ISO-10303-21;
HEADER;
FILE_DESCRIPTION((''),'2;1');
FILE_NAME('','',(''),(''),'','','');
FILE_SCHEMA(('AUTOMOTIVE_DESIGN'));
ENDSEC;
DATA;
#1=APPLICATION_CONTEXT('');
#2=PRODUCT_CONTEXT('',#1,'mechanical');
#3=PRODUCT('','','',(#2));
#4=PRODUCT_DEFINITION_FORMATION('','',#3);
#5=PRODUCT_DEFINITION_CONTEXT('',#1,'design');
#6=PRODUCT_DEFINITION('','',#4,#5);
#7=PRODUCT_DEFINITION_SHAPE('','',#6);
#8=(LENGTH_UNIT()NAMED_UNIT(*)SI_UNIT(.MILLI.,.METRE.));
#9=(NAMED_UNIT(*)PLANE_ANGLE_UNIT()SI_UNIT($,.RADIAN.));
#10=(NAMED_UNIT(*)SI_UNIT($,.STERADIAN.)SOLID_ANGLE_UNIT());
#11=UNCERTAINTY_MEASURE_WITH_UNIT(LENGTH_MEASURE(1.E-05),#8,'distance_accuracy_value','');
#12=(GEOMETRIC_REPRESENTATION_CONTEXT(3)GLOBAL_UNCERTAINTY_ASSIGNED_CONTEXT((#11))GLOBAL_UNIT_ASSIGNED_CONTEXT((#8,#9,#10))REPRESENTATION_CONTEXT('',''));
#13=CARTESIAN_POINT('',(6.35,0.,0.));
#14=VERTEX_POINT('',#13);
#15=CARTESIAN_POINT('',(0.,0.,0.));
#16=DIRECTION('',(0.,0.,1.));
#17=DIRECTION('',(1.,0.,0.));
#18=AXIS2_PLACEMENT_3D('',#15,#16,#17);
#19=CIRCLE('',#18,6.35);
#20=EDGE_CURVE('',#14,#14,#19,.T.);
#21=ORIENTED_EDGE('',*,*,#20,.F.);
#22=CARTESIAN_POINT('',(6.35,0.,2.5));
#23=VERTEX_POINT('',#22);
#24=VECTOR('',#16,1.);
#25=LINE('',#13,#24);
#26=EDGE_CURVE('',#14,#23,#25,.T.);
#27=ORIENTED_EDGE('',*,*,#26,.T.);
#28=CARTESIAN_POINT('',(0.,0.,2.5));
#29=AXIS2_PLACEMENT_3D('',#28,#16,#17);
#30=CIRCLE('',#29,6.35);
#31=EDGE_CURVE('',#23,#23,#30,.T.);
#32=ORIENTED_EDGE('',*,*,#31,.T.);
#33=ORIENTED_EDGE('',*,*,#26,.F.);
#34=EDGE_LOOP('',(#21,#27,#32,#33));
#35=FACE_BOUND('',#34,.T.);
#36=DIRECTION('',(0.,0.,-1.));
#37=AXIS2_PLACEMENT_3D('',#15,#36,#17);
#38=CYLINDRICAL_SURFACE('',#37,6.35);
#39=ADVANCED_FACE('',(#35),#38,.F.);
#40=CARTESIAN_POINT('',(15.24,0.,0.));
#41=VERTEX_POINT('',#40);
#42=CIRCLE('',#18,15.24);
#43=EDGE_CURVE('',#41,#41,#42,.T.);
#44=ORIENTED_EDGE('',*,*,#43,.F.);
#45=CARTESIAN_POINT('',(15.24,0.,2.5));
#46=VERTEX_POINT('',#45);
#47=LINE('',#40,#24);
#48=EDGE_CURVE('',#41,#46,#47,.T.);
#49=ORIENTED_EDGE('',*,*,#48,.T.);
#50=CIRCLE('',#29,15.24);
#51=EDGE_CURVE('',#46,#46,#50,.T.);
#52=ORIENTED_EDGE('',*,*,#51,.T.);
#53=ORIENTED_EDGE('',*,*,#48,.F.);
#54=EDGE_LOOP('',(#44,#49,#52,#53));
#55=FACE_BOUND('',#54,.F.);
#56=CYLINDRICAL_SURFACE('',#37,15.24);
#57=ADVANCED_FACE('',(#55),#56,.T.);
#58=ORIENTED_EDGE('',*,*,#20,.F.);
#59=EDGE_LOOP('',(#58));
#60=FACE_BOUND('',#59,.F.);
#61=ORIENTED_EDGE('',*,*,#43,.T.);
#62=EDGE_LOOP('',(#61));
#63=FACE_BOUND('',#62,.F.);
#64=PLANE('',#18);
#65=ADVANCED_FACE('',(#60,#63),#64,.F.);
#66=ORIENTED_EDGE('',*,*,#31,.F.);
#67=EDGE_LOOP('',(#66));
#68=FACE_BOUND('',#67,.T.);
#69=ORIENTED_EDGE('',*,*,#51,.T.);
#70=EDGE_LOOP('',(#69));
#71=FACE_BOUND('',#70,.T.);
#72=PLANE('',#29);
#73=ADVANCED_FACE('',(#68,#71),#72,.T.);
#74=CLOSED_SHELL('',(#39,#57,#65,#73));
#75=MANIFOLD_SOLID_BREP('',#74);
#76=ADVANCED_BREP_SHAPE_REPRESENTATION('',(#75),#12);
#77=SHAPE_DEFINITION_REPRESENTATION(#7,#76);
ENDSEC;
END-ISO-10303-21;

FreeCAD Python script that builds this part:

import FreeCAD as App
import Part
import Sketcher
Q = App.Units.Quantity

doc = App.newDocument("Part")
body = doc.addObject("PartDesign::Body", "Body")

# Sketch on XY plane
sketch1 = doc.addObject("Sketcher::SketchObject", "Sketch")
body.addObject(sketch1)
sketch1.AttachmentSupport = (doc.XY_Plane, [""])
sketch1.MapMode = "FlatFace"
sketch1.addGeometry(Part.Circle(App.Vector(0, 0, 0), App.Vector(0, 0, 1), 15), False)
sketch1.addGeometry(Part.Circle(App.Vector(0, 0, 0), App.Vector(0, 0, 1), 6), False)
sketch1.addConstraint(Sketcher.Constraint("Coincident", 0, 3, -1, 1))
sketch1.addConstraint(Sketcher.Constraint("Coincident", 1, 3, -1, 1))
sketch1.addConstraint(Sketcher.Constraint("Diameter", 0, Q("1.2 in")))
sketch1.addConstraint(Sketcher.Constraint("Diameter", 1, Q("0.5 in")))
pad1 = doc.addObject("PartDesign::Pad", "Pad")
body.addObject(pad1)
pad1.Profile = sketch1
pad1.Length = 2.5

doc.recompute()
